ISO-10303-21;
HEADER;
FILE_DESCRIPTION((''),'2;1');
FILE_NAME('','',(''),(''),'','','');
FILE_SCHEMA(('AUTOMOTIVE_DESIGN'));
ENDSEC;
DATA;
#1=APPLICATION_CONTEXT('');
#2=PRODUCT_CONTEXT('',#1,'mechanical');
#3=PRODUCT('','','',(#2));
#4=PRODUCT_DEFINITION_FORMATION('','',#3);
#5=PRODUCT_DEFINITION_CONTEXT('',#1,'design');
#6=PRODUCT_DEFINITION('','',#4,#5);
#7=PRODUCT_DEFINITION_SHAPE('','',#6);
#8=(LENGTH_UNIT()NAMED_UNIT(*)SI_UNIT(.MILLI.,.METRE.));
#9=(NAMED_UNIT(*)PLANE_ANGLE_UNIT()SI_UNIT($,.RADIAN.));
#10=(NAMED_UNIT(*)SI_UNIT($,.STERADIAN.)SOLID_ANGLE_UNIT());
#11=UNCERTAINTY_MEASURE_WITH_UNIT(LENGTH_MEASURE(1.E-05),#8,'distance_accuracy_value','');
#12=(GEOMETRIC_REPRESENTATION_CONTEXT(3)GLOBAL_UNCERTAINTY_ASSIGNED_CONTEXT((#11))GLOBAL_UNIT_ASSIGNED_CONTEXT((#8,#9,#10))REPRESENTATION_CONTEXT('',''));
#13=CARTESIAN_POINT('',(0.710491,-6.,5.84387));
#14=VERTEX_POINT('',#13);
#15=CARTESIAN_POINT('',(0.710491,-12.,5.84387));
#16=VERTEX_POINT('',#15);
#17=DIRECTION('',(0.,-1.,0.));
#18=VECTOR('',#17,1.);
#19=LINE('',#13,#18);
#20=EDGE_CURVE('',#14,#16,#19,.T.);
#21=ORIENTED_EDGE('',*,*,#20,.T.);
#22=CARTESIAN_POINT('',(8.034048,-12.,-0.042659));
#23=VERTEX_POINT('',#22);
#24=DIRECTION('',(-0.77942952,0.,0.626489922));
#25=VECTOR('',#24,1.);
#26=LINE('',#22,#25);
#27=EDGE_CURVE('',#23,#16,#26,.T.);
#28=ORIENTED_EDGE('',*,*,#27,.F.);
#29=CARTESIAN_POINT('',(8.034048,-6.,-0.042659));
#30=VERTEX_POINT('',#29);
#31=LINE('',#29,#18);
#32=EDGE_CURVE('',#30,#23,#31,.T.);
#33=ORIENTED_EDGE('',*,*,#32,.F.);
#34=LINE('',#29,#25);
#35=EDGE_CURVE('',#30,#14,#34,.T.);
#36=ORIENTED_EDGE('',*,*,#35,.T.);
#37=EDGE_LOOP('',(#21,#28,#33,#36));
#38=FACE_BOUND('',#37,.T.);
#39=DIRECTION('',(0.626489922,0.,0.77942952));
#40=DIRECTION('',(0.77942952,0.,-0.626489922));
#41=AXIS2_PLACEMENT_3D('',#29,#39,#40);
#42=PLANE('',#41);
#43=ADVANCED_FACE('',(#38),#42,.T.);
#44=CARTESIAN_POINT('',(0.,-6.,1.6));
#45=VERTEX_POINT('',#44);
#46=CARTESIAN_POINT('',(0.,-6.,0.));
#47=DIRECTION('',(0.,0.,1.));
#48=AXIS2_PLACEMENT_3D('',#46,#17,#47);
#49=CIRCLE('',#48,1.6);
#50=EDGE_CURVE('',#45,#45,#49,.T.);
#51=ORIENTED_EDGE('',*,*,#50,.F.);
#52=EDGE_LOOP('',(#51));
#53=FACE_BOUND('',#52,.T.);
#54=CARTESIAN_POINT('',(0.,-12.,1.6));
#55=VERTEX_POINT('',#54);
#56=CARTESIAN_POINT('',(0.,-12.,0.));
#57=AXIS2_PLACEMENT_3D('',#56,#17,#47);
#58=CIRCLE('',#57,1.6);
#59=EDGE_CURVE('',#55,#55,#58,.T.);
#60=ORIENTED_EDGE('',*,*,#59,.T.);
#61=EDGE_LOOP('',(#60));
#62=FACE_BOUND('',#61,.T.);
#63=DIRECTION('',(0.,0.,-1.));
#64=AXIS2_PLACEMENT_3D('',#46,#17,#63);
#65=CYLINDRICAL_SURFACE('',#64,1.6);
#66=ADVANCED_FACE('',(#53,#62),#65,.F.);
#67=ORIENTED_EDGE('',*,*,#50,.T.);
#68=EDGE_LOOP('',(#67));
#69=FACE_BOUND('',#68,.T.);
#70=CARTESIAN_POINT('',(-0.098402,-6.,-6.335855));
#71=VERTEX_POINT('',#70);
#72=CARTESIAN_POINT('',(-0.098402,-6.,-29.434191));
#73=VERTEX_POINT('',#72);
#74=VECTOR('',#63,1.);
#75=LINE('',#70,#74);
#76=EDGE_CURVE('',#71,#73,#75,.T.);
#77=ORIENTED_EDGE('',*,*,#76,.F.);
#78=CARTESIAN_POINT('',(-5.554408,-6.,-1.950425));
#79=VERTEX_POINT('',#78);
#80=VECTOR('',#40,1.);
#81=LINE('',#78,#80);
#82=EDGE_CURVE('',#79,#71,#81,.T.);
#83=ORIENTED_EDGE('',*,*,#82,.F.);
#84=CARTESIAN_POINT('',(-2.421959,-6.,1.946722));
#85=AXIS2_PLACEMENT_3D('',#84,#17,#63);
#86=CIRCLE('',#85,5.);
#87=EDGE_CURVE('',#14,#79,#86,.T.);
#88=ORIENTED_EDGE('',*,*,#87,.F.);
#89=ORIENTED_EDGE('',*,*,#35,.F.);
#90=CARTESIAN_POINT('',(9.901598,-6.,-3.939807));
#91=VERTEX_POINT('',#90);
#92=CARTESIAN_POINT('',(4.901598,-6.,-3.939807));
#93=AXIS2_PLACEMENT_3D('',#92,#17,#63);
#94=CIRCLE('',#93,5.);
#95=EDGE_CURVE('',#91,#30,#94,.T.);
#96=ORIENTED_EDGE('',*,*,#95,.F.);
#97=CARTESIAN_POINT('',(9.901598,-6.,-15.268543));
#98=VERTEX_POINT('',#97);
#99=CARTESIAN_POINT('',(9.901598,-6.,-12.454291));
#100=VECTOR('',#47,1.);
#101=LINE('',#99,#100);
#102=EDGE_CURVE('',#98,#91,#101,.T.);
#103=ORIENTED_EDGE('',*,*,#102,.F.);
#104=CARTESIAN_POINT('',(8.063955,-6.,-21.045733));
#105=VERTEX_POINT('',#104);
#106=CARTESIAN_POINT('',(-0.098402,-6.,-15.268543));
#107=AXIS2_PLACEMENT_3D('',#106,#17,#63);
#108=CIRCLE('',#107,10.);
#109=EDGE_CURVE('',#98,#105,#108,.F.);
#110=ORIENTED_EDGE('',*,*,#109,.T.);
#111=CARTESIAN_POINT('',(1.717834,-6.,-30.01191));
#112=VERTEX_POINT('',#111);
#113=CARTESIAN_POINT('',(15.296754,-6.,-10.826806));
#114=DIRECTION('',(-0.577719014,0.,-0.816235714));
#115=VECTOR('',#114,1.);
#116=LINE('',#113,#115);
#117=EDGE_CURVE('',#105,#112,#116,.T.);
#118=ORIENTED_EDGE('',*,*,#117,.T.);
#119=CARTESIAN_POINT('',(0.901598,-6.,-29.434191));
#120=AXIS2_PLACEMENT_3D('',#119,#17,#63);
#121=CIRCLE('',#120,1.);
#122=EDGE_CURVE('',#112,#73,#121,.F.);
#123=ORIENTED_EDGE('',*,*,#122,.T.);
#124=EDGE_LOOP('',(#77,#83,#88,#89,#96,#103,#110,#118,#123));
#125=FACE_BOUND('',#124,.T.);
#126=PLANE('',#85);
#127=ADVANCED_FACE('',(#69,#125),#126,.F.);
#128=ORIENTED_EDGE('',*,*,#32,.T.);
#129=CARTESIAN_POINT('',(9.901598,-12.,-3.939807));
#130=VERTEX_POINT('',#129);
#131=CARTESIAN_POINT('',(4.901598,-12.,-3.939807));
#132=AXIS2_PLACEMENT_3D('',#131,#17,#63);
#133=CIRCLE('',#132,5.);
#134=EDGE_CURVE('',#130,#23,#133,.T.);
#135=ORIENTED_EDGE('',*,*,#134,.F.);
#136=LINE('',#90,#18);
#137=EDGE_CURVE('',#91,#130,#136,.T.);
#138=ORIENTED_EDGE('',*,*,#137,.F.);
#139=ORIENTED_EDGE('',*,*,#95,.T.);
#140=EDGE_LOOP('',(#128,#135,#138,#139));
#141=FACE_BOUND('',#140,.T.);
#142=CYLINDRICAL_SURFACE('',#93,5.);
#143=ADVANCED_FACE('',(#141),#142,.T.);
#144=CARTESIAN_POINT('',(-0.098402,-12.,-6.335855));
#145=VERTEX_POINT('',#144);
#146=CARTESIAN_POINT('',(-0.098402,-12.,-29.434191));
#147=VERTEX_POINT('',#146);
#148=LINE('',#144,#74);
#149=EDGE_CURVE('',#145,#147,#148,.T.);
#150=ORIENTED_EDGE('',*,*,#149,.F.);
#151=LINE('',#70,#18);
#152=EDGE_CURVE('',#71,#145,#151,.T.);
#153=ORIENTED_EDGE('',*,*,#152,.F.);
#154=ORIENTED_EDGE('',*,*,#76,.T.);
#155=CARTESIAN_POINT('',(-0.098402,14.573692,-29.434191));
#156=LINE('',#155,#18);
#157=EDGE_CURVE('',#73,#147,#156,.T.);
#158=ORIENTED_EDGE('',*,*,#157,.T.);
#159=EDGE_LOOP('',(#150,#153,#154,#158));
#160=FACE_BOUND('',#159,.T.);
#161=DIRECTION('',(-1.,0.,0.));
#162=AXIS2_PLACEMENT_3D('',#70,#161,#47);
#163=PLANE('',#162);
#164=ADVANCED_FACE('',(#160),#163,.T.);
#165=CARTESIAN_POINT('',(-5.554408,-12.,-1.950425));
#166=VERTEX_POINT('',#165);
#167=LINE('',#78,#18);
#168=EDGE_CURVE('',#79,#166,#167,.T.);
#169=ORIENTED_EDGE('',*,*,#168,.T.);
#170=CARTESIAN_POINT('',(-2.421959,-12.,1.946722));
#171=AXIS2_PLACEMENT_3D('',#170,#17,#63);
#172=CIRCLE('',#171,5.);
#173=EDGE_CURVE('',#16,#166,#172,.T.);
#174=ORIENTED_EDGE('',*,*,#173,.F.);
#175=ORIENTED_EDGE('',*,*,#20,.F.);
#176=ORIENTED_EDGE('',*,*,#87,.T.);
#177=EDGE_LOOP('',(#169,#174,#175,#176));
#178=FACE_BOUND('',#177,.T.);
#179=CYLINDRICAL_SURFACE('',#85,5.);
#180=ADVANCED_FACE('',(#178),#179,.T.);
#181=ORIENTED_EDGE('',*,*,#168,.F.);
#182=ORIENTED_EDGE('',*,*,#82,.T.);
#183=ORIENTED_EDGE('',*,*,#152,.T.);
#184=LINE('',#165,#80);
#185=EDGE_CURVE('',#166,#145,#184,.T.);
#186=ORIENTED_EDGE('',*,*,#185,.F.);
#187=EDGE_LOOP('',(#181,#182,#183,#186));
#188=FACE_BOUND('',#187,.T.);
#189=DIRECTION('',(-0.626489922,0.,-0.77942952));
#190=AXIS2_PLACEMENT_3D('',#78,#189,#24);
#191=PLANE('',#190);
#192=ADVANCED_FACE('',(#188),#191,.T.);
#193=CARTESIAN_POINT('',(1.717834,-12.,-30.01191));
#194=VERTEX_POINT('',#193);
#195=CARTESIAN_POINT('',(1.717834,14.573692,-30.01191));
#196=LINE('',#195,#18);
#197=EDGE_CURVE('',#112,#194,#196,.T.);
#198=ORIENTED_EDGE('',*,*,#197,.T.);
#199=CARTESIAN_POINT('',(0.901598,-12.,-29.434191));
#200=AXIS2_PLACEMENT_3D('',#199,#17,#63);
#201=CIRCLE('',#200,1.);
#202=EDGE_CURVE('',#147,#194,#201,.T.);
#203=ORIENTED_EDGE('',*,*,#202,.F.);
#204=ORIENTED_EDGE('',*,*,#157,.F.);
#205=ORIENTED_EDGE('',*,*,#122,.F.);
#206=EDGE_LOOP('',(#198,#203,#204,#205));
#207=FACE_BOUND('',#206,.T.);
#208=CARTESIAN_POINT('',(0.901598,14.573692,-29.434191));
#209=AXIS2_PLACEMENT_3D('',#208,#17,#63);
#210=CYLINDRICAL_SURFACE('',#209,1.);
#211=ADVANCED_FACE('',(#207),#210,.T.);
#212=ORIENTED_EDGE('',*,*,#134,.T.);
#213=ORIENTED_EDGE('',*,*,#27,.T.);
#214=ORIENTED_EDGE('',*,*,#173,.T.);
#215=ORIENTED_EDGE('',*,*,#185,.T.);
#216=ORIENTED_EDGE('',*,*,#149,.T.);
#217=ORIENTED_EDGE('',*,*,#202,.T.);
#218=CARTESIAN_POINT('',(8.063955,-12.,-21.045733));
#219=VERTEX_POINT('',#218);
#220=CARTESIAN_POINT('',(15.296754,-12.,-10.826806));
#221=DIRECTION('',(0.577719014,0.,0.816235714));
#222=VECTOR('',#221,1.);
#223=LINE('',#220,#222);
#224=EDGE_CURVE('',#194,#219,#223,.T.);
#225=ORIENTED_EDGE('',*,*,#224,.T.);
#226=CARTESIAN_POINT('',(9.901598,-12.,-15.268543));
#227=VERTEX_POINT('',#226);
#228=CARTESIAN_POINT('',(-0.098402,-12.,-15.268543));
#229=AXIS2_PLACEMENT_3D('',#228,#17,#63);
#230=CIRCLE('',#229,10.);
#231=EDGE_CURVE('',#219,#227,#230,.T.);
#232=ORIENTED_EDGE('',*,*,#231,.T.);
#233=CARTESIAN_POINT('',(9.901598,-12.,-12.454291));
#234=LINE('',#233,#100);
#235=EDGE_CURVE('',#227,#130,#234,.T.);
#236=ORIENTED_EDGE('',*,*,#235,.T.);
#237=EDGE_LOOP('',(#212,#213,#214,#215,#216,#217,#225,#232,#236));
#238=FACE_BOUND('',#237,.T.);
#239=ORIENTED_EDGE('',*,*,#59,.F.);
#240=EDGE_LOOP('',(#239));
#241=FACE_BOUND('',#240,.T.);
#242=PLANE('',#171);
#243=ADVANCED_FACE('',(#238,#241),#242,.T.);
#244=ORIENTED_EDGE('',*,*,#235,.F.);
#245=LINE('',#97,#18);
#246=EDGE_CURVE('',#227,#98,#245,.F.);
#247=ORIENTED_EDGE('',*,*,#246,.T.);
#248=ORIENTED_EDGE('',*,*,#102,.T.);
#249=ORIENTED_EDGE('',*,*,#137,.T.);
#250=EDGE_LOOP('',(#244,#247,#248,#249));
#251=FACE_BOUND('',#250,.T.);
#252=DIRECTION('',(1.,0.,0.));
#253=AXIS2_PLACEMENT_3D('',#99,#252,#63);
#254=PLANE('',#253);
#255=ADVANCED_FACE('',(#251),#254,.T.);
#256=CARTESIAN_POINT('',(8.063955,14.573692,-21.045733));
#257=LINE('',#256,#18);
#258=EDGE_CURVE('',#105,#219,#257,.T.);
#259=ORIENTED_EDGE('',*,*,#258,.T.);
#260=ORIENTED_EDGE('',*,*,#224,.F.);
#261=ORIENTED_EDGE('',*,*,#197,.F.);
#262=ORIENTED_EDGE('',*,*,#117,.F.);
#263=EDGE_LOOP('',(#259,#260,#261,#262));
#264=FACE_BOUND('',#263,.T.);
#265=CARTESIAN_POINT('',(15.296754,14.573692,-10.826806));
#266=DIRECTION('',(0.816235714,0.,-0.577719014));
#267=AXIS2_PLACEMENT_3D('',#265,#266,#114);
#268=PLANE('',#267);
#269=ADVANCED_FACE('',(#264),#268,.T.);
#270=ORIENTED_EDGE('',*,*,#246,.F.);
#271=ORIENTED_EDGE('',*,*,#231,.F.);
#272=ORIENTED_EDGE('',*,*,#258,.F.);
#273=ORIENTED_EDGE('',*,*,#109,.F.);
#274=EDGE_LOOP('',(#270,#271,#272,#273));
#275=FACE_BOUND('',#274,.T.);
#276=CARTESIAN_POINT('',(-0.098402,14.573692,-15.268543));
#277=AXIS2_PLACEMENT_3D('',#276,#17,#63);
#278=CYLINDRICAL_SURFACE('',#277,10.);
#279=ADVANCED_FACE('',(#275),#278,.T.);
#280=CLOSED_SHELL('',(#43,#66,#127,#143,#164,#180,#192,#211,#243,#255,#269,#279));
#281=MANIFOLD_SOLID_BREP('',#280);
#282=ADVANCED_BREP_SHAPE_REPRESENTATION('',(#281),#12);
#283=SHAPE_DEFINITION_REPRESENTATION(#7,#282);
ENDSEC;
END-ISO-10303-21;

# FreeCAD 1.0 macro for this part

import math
import FreeCAD as App
import Part
import Sketcher
from FreeCAD import Vector


def edges_at(feature, points):
    """Names of the edges that pass closest to the given points."""
    edges = feature.Shape.Edges
    near = lambda p: min(range(len(edges)), key=lambda i: edges[i].distToShape(Part.Vertex(*p))[0])
    return sorted({f"Edge{near(p) + 1}" for p in points})

doc = App.newDocument("Part")
body = doc.addObject("PartDesign::Body", "Body")

sketch1 = body.newObject("Sketcher::SketchObject", "Sketch")
sketch1.AttachmentSupport = (doc.getObject("XZ_Plane"), [""])
sketch1.MapMode = "FlatFace"
sketch1.AttachmentOffset = App.Placement(Vector(0, 0, 12), App.Rotation())
sketch1.addGeometry([
    Part.LineSegment(Vector(-5.6, -2, 0), Vector(-0.1, -6.3, 0)),
    Part.LineSegment(Vector(-0.1, -6.3, 0), Vector(-0.1, -23.4, 0)),
    Part.ArcOfCircle(Part.Circle(Vector(1.4, -23.4, 0), Vector(0, 0, 1), 1.5), math.radians(180), math.radians(320)),
    Part.ArcOfCircle(Part.Circle(Vector(-47.6, 18.2, 0), Vector(0, 0, 1), 65.8), math.radians(-40.33), math.radians(-30.25)),
    Part.ArcOfCircle(Part.Circle(Vector(4.9, -12.5, 0), Vector(0, 0, 1), 5), math.radians(-30), math.radians(0)),
    Part.LineSegment(Vector(9.9, -12.5, 0), Vector(9.9, -3.9, 0)),
    Part.ArcOfCircle(Part.Circle(Vector(4.9, -3.9, 0), Vector(0, 0, 1), 5), math.radians(0), math.radians(51)),
    Part.LineSegment(Vector(8, 0, 0), Vector(0.7, 5.8, 0)),
    Part.ArcOfCircle(Part.Circle(Vector(-2.4, 1.9, 0), Vector(0, 0, 1), 5), math.radians(51), math.radians(231)),
    Part.Circle(Vector(0, 0, 0), Vector(0, 0, 1), 1.6),
], False)
sketch1.addConstraint([
    Sketcher.Constraint("Coincident", 0, 2, 1, 1),
    Sketcher.Constraint("Tangent", 1, 2, 2, 1),
    Sketcher.Constraint("Tangent", 2, 2, 3, 1),
    Sketcher.Constraint("Tangent", 3, 2, 4, 1),
    Sketcher.Constraint("Tangent", 4, 2, 5, 1),
    Sketcher.Constraint("Tangent", 5, 2, 6, 1),
    Sketcher.Constraint("Tangent", 6, 2, 7, 1),
    Sketcher.Constraint("Tangent", 7, 2, 8, 1),
    Sketcher.Constraint("Tangent", 8, 2, 0, 1),
    Sketcher.Constraint("Vertical", 1),
    Sketcher.Constraint("Vertical", 5),
    Sketcher.Constraint("Coincident", 9, 3, -1, 1),
    Sketcher.Constraint("Equal", 4, 6),
    Sketcher.Constraint("Equal", 6, 8),
    Sketcher.Constraint("Parallel", 0, 7),
    Sketcher.Constraint("Radius", 4, 5.0),
    Sketcher.Constraint("Diameter", 9, 3.2),
    Sketcher.Constraint("Radius", 2, 1.5),
    Sketcher.Constraint("Distance", 0, 7.0),
    Sketcher.Constraint("DistanceX", 3, 3, 2, 3, 49.0),
    Sketcher.Constraint("DistanceX", 0, 2, 6, 3, 5.0),
    Sketcher.Constraint("Radius", 3, 65.776136),
    Sketcher.Constraint("DistanceX", -1, 1, 2, 3, 1.401598),
    Sketcher.Constraint("DistanceX", 8, 2, 7, 2, 6.264899),
    Sketcher.Constraint("DistanceY", 1, 2, 1, 1, 17.098336),
    Sketcher.Constraint("DistanceY", 2, 3, -1, 1, 23.434191),
])
pad1 = body.newObject("PartDesign::Pad", "Pad")
pad1.Profile = sketch1
pad1.Length = 6
pad1.Reversed = True

sketch2 = body.newObject("Sketcher::SketchObject", "Sketch001")
sketch2.AttachmentSupport = (doc.getObject("XZ_Plane"), [""])
sketch2.MapMode = "FlatFace"
sketch2.AttachmentOffset = App.Placement(Vector(0, 0, 12), App.Rotation())
sketch2.addGeometry([
    Part.ArcOfCircle(Part.Circle(Vector(1.4, -23.4, 0), Vector(0, 0, 1), 1.5), math.radians(180), math.radians(320)),
    Part.LineSegment(Vector(-0.1, -23.4, 0), Vector(-0.1, -29.4, 0)),
    Part.ArcOfCircle(Part.Circle(Vector(0.9, -29.4, 0), Vector(0, 0, 1), 1), math.radians(180), math.radians(325)),
    Part.LineSegment(Vector(1.7, -30, 0), Vector(9.9, -18.4, 0)),
    Part.LineSegment(Vector(9.9, -18.4, 0), Vector(9.9, -12.5, 0)),
    Part.ArcOfCircle(Part.Circle(Vector(4.9, -12.5, 0), Vector(0, 0, 1), 5), math.radians(-30), math.radians(0)),
    Part.ArcOfCircle(Part.Circle(Vector(-47.6, 18.2, 0), Vector(0, 0, 1), 65.8), math.radians(-40.33), math.radians(-30.25)),
], False)
sketch2.addConstraint([
    Sketcher.Constraint("Tangent", 0, 1, 1, 1),
    Sketcher.Constraint("Tangent", 1, 2, 2, 1),
    Sketcher.Constraint("Tangent", 2, 2, 3, 1),
    Sketcher.Constraint("Coincident", 3, 2, 4, 1),
    Sketcher.Constraint("Tangent", 4, 2, 5, 2),
    Sketcher.Constraint("Tangent", 5, 1, 6, 2),
    Sketcher.Constraint("Tangent", 6, 1, 0, 2),
    Sketcher.Constraint("Vertical", 1),
    Sketcher.Constraint("Vertical", 4),
    Sketcher.Constraint("Radius", 2, 1.0),
    Sketcher.Constraint("Radius", 5, 5.0),
    Sketcher.Constraint("Radius", 0, 1.5),
    Sketcher.Constraint("DistanceY", 1, 2, 1, 1, 6.0),
    Sketcher.Constraint("DistanceX", 2, 3, 5, 3, 4.0),
    Sketcher.Constraint("DistanceX", 6, 3, 0, 3, 49.0),
    Sketcher.Constraint("Radius", 6, 65.776136),
    Sketcher.Constraint("DistanceY", 4, 1, 4, 2, 5.995111),
    Sketcher.Constraint("DistanceX", -1, 1, 0, 3, 1.401598),
    Sketcher.Constraint("DistanceY", 0, 3, -1, 1, 23.434191),
])
pad2 = body.newObject("PartDesign::Pad", "Pad001")
pad2.Profile = sketch2
pad2.Length = 6
pad2.Reversed = True
doc.recompute()

fillet = body.newObject("PartDesign::Fillet", "Fillet")
fillet.Base = (pad2, edges_at(pad2, [(9.902, -9, -18.449)]))
fillet.Radius = 10

doc.recompute()
